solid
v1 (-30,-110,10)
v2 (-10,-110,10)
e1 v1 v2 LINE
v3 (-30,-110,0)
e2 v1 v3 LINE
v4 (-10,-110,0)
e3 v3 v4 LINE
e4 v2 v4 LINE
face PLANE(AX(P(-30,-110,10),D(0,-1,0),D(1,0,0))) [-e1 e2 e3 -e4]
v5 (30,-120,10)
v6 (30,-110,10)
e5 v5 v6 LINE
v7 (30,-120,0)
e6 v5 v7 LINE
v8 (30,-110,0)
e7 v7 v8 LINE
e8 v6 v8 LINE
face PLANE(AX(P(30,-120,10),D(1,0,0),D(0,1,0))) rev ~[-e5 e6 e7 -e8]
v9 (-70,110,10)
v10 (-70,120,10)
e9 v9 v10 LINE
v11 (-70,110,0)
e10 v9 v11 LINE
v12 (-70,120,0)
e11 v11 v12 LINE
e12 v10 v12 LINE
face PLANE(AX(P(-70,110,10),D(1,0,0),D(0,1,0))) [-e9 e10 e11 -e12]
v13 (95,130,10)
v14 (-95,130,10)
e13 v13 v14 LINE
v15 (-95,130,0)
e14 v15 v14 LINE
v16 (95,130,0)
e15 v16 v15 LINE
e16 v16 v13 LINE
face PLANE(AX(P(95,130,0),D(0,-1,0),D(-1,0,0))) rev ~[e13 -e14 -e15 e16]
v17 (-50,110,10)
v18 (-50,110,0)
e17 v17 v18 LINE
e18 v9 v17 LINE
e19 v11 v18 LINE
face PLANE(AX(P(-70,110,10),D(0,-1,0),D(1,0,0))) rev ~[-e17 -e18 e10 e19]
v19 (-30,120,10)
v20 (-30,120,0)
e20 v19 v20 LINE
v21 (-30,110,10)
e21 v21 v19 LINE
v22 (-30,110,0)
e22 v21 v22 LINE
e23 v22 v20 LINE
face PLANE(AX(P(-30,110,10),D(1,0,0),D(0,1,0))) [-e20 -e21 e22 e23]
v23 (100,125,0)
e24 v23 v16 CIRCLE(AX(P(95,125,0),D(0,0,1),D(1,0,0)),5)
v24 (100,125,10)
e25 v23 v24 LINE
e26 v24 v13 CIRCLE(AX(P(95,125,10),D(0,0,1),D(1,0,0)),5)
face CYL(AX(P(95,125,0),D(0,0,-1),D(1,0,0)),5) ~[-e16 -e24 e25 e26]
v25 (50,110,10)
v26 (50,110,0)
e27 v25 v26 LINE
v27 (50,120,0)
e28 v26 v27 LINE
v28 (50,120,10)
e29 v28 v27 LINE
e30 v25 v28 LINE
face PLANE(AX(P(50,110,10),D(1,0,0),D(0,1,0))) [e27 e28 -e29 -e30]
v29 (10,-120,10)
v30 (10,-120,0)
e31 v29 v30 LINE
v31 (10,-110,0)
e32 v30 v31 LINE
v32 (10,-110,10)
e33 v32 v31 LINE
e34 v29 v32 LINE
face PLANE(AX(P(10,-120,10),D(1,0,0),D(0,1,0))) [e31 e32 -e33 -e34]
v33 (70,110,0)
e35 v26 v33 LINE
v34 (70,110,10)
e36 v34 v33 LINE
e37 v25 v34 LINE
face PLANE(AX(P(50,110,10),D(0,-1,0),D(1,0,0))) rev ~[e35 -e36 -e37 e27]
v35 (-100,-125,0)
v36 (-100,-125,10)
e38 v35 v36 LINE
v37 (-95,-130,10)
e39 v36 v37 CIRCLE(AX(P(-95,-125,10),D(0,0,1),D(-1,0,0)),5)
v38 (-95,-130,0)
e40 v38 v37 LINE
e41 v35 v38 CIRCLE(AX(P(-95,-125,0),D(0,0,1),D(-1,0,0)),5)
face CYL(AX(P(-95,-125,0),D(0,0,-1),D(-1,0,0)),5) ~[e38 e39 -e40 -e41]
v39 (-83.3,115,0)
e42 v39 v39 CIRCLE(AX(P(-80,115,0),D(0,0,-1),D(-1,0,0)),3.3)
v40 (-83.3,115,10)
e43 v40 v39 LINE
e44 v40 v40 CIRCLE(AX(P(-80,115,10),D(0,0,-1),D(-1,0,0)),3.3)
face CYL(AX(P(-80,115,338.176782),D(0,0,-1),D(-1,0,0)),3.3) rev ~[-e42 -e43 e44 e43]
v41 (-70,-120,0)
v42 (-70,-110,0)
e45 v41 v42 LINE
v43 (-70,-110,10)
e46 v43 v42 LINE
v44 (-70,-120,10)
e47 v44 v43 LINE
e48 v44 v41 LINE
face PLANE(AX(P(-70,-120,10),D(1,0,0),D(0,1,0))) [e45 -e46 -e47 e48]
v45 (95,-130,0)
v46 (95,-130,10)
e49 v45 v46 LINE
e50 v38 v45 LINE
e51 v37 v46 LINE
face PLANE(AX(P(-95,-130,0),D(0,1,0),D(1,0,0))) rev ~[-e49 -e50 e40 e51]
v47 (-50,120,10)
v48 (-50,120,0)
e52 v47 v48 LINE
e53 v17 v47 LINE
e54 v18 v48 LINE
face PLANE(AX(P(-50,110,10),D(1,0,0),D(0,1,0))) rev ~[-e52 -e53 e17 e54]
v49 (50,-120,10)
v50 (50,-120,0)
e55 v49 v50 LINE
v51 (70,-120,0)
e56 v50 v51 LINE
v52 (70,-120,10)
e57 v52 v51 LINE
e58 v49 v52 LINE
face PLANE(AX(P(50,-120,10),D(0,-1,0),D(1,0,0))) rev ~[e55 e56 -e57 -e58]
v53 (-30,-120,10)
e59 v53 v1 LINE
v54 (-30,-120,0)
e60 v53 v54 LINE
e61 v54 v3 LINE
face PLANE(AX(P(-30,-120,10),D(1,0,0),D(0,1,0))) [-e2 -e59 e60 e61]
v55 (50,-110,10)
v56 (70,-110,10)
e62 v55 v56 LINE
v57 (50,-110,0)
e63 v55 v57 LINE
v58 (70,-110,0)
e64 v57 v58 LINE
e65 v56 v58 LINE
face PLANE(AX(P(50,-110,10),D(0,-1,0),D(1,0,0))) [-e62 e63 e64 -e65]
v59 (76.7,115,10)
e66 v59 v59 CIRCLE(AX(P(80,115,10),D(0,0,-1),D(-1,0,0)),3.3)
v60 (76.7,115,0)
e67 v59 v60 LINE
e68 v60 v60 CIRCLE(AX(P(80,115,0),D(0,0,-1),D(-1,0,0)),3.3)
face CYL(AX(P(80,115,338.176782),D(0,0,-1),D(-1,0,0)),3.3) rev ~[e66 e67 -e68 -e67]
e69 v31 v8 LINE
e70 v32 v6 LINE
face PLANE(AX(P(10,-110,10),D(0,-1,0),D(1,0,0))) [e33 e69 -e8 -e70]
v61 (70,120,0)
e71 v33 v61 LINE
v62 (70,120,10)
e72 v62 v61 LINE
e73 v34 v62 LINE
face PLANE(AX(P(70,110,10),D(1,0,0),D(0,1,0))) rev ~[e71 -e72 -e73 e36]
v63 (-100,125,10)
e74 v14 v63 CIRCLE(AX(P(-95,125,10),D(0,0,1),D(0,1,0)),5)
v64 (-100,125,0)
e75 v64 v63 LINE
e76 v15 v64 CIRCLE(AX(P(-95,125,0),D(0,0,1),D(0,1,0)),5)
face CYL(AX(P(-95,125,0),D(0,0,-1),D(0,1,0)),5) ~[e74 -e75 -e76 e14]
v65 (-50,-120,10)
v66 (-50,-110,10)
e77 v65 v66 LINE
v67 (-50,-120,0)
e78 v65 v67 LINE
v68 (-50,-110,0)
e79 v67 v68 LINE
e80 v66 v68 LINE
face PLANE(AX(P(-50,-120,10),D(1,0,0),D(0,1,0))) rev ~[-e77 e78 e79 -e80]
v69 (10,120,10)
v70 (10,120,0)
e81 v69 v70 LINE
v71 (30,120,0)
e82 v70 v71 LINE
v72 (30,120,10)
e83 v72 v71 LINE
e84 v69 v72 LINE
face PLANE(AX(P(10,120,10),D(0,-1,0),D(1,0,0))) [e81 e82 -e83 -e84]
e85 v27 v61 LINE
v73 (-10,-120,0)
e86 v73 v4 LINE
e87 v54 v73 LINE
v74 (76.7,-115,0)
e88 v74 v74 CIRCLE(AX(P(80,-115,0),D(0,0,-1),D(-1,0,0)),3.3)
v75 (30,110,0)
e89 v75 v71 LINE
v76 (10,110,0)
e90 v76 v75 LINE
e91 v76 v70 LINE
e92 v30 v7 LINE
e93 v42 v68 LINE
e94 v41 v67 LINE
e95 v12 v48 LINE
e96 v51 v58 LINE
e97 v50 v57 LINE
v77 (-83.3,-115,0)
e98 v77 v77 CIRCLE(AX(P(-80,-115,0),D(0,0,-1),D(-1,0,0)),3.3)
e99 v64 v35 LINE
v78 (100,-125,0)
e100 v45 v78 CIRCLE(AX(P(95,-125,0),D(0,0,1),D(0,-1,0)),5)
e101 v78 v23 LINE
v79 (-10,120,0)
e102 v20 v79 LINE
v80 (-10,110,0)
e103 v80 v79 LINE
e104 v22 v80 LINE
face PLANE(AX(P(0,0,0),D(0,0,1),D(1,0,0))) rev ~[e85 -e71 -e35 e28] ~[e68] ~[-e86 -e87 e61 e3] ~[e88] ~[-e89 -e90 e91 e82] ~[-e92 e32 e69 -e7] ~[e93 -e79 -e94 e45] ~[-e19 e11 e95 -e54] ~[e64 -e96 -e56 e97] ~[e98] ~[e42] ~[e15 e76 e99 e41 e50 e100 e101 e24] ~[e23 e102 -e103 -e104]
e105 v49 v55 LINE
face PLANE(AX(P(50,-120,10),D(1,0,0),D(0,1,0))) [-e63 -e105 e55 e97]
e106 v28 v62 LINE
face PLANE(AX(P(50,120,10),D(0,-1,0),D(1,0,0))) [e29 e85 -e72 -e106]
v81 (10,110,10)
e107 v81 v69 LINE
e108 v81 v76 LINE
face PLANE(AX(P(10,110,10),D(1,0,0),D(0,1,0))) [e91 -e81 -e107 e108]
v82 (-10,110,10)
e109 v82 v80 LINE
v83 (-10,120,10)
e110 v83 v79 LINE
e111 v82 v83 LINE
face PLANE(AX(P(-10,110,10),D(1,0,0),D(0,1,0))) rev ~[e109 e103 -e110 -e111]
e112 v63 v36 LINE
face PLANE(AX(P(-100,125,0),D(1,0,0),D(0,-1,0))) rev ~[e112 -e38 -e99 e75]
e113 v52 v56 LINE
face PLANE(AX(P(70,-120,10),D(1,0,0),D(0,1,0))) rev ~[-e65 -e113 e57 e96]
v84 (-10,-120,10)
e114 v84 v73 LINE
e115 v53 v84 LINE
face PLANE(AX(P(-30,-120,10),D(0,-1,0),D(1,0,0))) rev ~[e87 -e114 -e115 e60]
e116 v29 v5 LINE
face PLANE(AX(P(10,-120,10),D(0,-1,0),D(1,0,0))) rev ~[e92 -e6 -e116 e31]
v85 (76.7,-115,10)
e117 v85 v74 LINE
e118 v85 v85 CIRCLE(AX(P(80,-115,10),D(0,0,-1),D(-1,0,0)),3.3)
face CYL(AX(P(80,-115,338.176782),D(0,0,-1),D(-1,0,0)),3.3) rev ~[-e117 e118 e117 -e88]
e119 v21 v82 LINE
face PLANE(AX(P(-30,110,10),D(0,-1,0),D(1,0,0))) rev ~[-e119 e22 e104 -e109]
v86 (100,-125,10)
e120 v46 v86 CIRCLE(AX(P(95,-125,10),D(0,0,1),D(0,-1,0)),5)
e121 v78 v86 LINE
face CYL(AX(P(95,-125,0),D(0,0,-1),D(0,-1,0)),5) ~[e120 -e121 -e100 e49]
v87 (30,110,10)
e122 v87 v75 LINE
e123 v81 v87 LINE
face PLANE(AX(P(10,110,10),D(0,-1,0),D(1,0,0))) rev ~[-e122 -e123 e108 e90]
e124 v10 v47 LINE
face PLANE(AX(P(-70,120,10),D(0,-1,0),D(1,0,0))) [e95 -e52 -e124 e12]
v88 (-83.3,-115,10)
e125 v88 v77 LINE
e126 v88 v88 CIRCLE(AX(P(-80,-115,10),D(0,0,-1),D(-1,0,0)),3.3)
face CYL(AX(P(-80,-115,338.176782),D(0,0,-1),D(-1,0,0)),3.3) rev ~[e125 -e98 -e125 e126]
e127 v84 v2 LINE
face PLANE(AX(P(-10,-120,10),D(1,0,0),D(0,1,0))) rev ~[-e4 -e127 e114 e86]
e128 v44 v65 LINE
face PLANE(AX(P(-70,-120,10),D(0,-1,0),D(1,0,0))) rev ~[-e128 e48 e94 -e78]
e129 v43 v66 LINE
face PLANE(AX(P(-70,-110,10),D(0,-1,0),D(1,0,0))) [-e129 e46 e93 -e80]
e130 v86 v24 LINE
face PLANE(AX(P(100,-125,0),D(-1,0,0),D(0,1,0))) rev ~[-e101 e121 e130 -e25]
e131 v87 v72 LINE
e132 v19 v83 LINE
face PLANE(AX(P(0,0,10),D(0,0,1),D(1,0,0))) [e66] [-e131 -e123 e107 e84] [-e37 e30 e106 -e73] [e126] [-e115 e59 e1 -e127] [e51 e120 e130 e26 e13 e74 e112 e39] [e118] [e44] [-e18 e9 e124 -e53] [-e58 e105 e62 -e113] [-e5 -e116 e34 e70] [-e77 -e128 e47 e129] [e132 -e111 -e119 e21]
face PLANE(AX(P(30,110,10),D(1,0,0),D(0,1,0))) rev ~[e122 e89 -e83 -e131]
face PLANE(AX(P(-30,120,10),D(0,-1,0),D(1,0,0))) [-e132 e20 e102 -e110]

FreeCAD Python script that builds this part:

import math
import FreeCAD as App
import Part
import Sketcher
from FreeCAD import Vector

doc = App.newDocument("Part")
body = doc.addObject("PartDesign::Body", "Body")

# Sketch on XY plane
sketch1 = body.newObject("Sketcher::SketchObject", "Sketch")
sketch1.AttachmentSupport = (doc.getObject("XY_Plane"), [""])
sketch1.MapMode = "FlatFace"
sketch1.addGeometry(Part.ArcOfCircle(Part.Circle(Vector(95, 125, 0), Vector(0, 0, 1), 5), math.radians(0), math.radians(90)), False)
sketch1.addGeometry(Part.LineSegment(Vector(95, 130, 0), Vector(-95, 130, 0)), False)
sketch1.addGeometry(Part.ArcOfCircle(Part.Circle(Vector(-95, 125, 0), Vector(0, 0, 1), 5), math.radians(90), math.radians(180)), False)
sketch1.addGeometry(Part.LineSegment(Vector(-100, 125, 0), Vector(-100, -125, 0)), False)
sketch1.addGeometry(Part.ArcOfCircle(Part.Circle(Vector(-95, -125, 0), Vector(0, 0, 1), 5), math.radians(180), math.radians(270)), False)
sketch1.addGeometry(Part.LineSegment(Vector(-95, -130, 0), Vector(95, -130, 0)), False)
sketch1.addGeometry(Part.ArcOfCircle(Part.Circle(Vector(95, -125, 0), Vector(0, 0, 1), 5), math.radians(-90), math.radians(0)), False)
sketch1.addGeometry(Part.LineSegment(Vector(100, -125, 0), Vector(100, 125, 0)), False)
sketch1.addConstraint(Sketcher.Constraint("Tangent", 0, 2, 1, 1))
sketch1.addConstraint(Sketcher.Constraint("Tangent", 1, 2, 2, 1))
sketch1.addConstraint(Sketcher.Constraint("Tangent", 2, 2, 3, 1))
sketch1.addConstraint(Sketcher.Constraint("Tangent", 3, 2, 4, 1))
sketch1.addConstraint(Sketcher.Constraint("Tangent", 4, 2, 5, 1))
sketch1.addConstraint(Sketcher.Constraint("Tangent", 5, 2, 6, 1))
sketch1.addConstraint(Sketcher.Constraint("Tangent", 6, 2, 7, 1))
sketch1.addConstraint(Sketcher.Constraint("Tangent", 7, 2, 0, 1))
sketch1.addConstraint(Sketcher.Constraint("Horizontal", 1))
sketch1.addConstraint(Sketcher.Constraint("Vertical", 3))
sketch1.addConstraint(Sketcher.Constraint("Horizontal", 5))
sketch1.addConstraint(Sketcher.Constraint("Vertical", 7))
sketch1.addConstraint(Sketcher.Constraint("Equal", 0, 2))
sketch1.addConstraint(Sketcher.Constraint("Equal", 2, 4))
sketch1.addConstraint(Sketcher.Constraint("Equal", 4, 6))
sketch1.addConstraint(Sketcher.Constraint("Symmetric", 0, 3, 4, 3, -1, 1))
sketch1.addConstraint(Sketcher.Constraint("Radius", 0, 5.0))
sketch1.addConstraint(Sketcher.Constraint("DistanceX", 1, 2, 1, 1, 190.0))
sketch1.addConstraint(Sketcher.Constraint("DistanceY", 3, 2, 3, 1, 250.0))
pad1 = body.newObject("PartDesign::Pad", "Pad")
pad1.Profile = sketch1
pad1.Length = 10

# Sketch on XY plane
sketch2 = body.newObject("Sketcher::SketchObject", "Sketch001")
sketch2.AttachmentSupport = (doc.getObject("XY_Plane"), [""])
sketch2.MapMode = "FlatFace"
sketch2.AttachmentOffset = App.Placement(Vector(0, 0, 10), App.Rotation())
sketch2.addGeometry(Part.LineSegment(Vector(-70, -110, 0), Vector(-70, -120, 0)), False)
sketch2.addGeometry(Part.LineSegment(Vector(-70, -120, 0), Vector(-50, -120, 0)), False)
sketch2.addGeometry(Part.LineSegment(Vector(-50, -120, 0), Vector(-50, -110, 0)), False)
sketch2.addGeometry(Part.LineSegment(Vector(-50, -110, 0), Vector(-70, -110, 0)), False)
sketch2.addGeometry(Part.LineSegment(Vector(-30, -110, 0), Vector(-30, -120, 0)), False)
sketch2.addGeometry(Part.LineSegment(Vector(-30, -120, 0), Vector(-10, -120, 0)), False)
sketch2.addGeometry(Part.LineSegment(Vector(-10, -120, 0), Vector(-10, -110, 0)), False)
sketch2.addGeometry(Part.LineSegment(Vector(-10, -110, 0), Vector(-30, -110, 0)), False)
sketch2.addGeometry(Part.LineSegment(Vector(10, -110, 0), Vector(10, -120, 0)), False)
sketch2.addGeometry(Part.LineSegment(Vector(10, -120, 0), Vector(30, -120, 0)), False)
sketch2.addGeometry(Part.LineSegment(Vector(30, -120, 0), Vector(30, -110, 0)), False)
sketch2.addGeometry(Part.LineSegment(Vector(30, -110, 0), Vector(10, -110, 0)), False)
sketch2.addGeometry(Part.LineSegment(Vector(50, -110, 0), Vector(50, -120, 0)), False)
sketch2.addGeometry(Part.LineSegment(Vector(50, -120, 0), Vector(70, -120, 0)), False)
sketch2.addGeometry(Part.LineSegment(Vector(70, -120, 0), Vector(70, -110, 0)), False)
sketch2.addGeometry(Part.LineSegment(Vector(70, -110, 0), Vector(50, -110, 0)), False)
sketch2.addGeometry(Part.LineSegment(Vector(50, 120, 0), Vector(50, 110, 0)), False)
sketch2.addGeometry(Part.LineSegment(Vector(50, 110, 0), Vector(70, 110, 0)), False)
sketch2.addGeometry(Part.LineSegment(Vector(70, 110, 0), Vector(70, 120, 0)), False)
sketch2.addGeometry(Part.LineSegment(Vector(70, 120, 0), Vector(50, 120, 0)), False)
sketch2.addGeometry(Part.LineSegment(Vector(-70, 120, 0), Vector(-70, 110, 0)), False)
sketch2.addGeometry(Part.LineSegment(Vector(-70, 110, 0), Vector(-50, 110, 0)), False)
sketch2.addGeometry(Part.LineSegment(Vector(-50, 110, 0), Vector(-50, 120, 0)), False)
sketch2.addGeometry(Part.LineSegment(Vector(-50, 120, 0), Vector(-70, 120, 0)), False)
sketch2.addGeometry(Part.LineSegment(Vector(10, 120, 0), Vector(10, 110, 0)), False)
sketch2.addGeometry(Part.LineSegment(Vector(10, 110, 0), Vector(30, 110, 0)), False)
sketch2.addGeometry(Part.LineSegment(Vector(30, 110, 0), Vector(30, 120, 0)), False)
sketch2.addGeometry(Part.LineSegment(Vector(30, 120, 0), Vector(10, 120, 0)), False)
sketch2.addGeometry(Part.LineSegment(Vector(-30, 120, 0), Vector(-30, 110, 0)), False)
sketch2.addGeometry(Part.LineSegment(Vector(-30, 110, 0), Vector(-10, 110, 0)), False)
sketch2.addGeometry(Part.LineSegment(Vector(-10, 110, 0), Vector(-10, 120, 0)), False)
sketch2.addGeometry(Part.LineSegment(Vector(-10, 120, 0), Vector(-30, 120, 0)), False)
sketch2.addConstraint(Sketcher.Constraint("Coincident", 0, 2, 1, 1))
sketch2.addConstraint(Sketcher.Constraint("Coincident", 1, 2, 2, 1))
sketch2.addConstraint(Sketcher.Constraint("Coincident", 2, 2, 3, 1))
sketch2.addConstraint(Sketcher.Constraint("Coincident", 3, 2, 0, 1))
sketch2.addConstraint(Sketcher.Constraint("Coincident", 4, 2, 5, 1))
sketch2.addConstraint(Sketcher.Constraint("Coincident", 5, 2, 6, 1))
sketch2.addConstraint(Sketcher.Constraint("Coincident", 6, 2, 7, 1))
sketch2.addConstraint(Sketcher.Constraint("Coincident", 7, 2, 4, 1))
sketch2.addConstraint(Sketcher.Constraint("Coincident", 8, 2, 9, 1))
sketch2.addConstraint(Sketcher.Constraint("Coincident", 9, 2, 10, 1))
sketch2.addConstraint(Sketcher.Constraint("Coincident", 10, 2, 11, 1))
sketch2.addConstraint(Sketcher.Constraint("Coincident", 11, 2, 8, 1))
sketch2.addConstraint(Sketcher.Constraint("Coincident", 12, 2, 13, 1))
sketch2.addConstraint(Sketcher.Constraint("Coincident", 13, 2, 14, 1))
sketch2.addConstraint(Sketcher.Constraint("Coincident", 14, 2, 15, 1))
sketch2.addConstraint(Sketcher.Constraint("Coincident", 15, 2, 12, 1))
sketch2.addConstraint(Sketcher.Constraint("Coincident", 16, 2, 17, 1))
sketch2.addConstraint(Sketcher.Constraint("Coincident", 17, 2, 18, 1))
sketch2.addConstraint(Sketcher.Constraint("Coincident", 18, 2, 19, 1))
sketch2.addConstraint(Sketcher.Constraint("Coincident", 19, 2, 16, 1))
sketch2.addConstraint(Sketcher.Constraint("Coincident", 20, 2, 21, 1))
sketch2.addConstraint(Sketcher.Constraint("Coincident", 21, 2, 22, 1))
sketch2.addConstraint(Sketcher.Constraint("Coincident", 22, 2, 23, 1))
sketch2.addConstraint(Sketcher.Constraint("Coincident", 23, 2, 20, 1))
sketch2.addConstraint(Sketcher.Constraint("Coincident", 24, 2, 25, 1))
sketch2.addConstraint(Sketcher.Constraint("Coincident", 25, 2, 26, 1))
sketch2.addConstraint(Sketcher.Constraint("Coincident", 26, 2, 27, 1))
sketch2.addConstraint(Sketcher.Constraint("Coincident", 27, 2, 24, 1))
sketch2.addConstraint(Sketcher.Constraint("Coincident", 28, 2, 29, 1))
sketch2.addConstraint(Sketcher.Constraint("Coincident", 29, 2, 30, 1))
sketch2.addConstraint(Sketcher.Constraint("Coincident", 30, 2, 31, 1))
sketch2.addConstraint(Sketcher.Constraint("Coincident", 31, 2, 28, 1))
sketch2.addConstraint(Sketcher.Constraint("Vertical", 0))
sketch2.addConstraint(Sketcher.Constraint("Horizontal", 1))
sketch2.addConstraint(Sketcher.Constraint("Vertical", 2))
sketch2.addConstraint(Sketcher.Constraint("Horizontal", 3))
sketch2.addConstraint(Sketcher.Constraint("Vertical", 4))
sketch2.addConstraint(Sketcher.Constraint("Horizontal", 5))
sketch2.addConstraint(Sketcher.Constraint("Vertical", 6))
sketch2.addConstraint(Sketcher.Constraint("Horizontal", 7))
sketch2.addConstraint(Sketcher.Constraint("Vertical", 8))
sketch2.addConstraint(Sketcher.Constraint("Horizontal", 9))
sketch2.addConstraint(Sketcher.Constraint("Vertical", 10))
sketch2.addConstraint(Sketcher.Constraint("Horizontal", 11))
sketch2.addConstraint(Sketcher.Constraint("Vertical", 12))
sketch2.addConstraint(Sketcher.Constraint("Horizontal", 13))
sketch2.addConstraint(Sketcher.Constraint("Vertical", 14))
sketch2.addConstraint(Sketcher.Constraint("Horizontal", 15))
sketch2.addConstraint(Sketcher.Constraint("Vertical", 16))
sketch2.addConstraint(Sketcher.Constraint("Horizontal", 17))
sketch2.addConstraint(Sketcher.Constraint("Vertical", 18))
sketch2.addConstraint(Sketcher.Constraint("Horizontal", 19))
sketch2.addConstraint(Sketcher.Constraint("Vertical", 20))
sketch2.addConstraint(Sketcher.Constraint("Horizontal", 21))
sketch2.addConstraint(Sketcher.Constraint("Vertical", 22))
sketch2.addConstraint(Sketcher.Constraint("Horizontal", 23))
sketch2.addConstraint(Sketcher.Constraint("Vertical", 24))
sketch2.addConstraint(Sketcher.Constraint("Horizontal", 25))
sketch2.addConstraint(Sketcher.Constraint("Vertical", 26))
sketch2.addConstraint(Sketcher.Constraint("Horizontal", 27))
sketch2.addConstraint(Sketcher.Constraint("Vertical", 28))
sketch2.addConstraint(Sketcher.Constraint("Horizontal", 29))
sketch2.addConstraint(Sketcher.Constraint("Vertical", 30))
sketch2.addConstraint(Sketcher.Constraint("Horizontal", 31))
sketch2.addConstraint(Sketcher.Constraint("Symmetric", 2, 2, 16, 2, -1, 1))
sketch2.addConstraint(Sketcher.Constraint("Symmetric", 0, 2, 18, 2, -1, 1))
sketch2.addConstraint(Sketcher.Constraint("Symmetric", 14, 2, 20, 2, -1, 1))
sketch2.addConstraint(Sketcher.Constraint("Symmetric", 12, 2, 22, 2, -1, 1))
sketch2.addConstraint(Sketcher.Constraint("Symmetric", 6, 2, 24, 2, -1, 1))
sketch2.addConstraint(Sketcher.Constraint("Symmetric", 4, 2, 26, 2, -1, 1))
sketch2.addConstraint(Sketcher.Constraint("Symmetric", 10, 2, 28, 2, -1, 1))
sketch2.addConstraint(Sketcher.Constraint("Symmetric", 8, 2, 30, 2, -1, 1))
sketch2.addConstraint(Sketcher.Constraint("Symmetric", 5, 2, 8, 2, -2))
sketch2.addConstraint(Sketcher.Constraint("Symmetric", 7, 2, 10, 2, -2))
sketch2.addConstraint(Sketcher.Constraint("Symmetric", 1, 2, 12, 2, -2))
sketch2.addConstraint(Sketcher.Constraint("Symmetric", 3, 2, 14, 2, -2))
sketch2.addConstraint(Sketcher.Constraint("Horizontal", 1, 2, 4, 2))
sketch2.addConstraint(Sketcher.Constraint("Horizontal", 3, 2, 6, 2))
sketch2.addConstraint(Sketcher.Constraint("Equal", 3, 5))
sketch2.addConstraint(Sketcher.Constraint("DistanceX", 1, 1, 1, 2, 20.0))
sketch2.addConstraint(Sketcher.Constraint("DistanceY", 0, 2, 0, 1, 10.0))
sketch2.addConstraint(Sketcher.Constraint("DistanceX", 0, 2, -1, 1, 70.0))
sketch2.addConstraint(Sketcher.Constraint("DistanceY", 0, 2, -1, 1, 120.0))
sketch2.addConstraint(Sketcher.Constraint("DistanceX", 4, 2, -1, 1, 30.0))
pocket1 = body.newObject("PartDesign::Pocket", "Pocket")
pocket1.Profile = sketch2
pocket1.Type = "ThroughAll"

# Sketch on XY plane
sketch3 = body.newObject("Sketcher::SketchObject", "Sketch002")
sketch3.AttachmentSupport = (doc.getObject("XY_Plane"), [""])
sketch3.MapMode = "FlatFace"
sketch3.AttachmentOffset = App.Placement(Vector(0, 0, 10), App.Rotation())
sketch3.addGeometry(Part.Circle(Vector(-80, 115, 0), Vector(0, 0, 1), 3.3), False)
sketch3.addGeometry(Part.Circle(Vector(80, 115, 0), Vector(0, 0, 1), 3.3), False)
sketch3.addGeometry(Part.Circle(Vector(80, -115, 0), Vector(0, 0, 1), 3.3), False)
sketch3.addGeometry(Part.Circle(Vector(-80, -115, 0), Vector(0, 0, 1), 3.3), False)
sketch3.addConstraint(Sketcher.Constraint("Equal", 0, 1))
sketch3.addConstraint(Sketcher.Constraint("Equal", 1, 2))
sketch3.addConstraint(Sketcher.Constraint("Equal", 2, 3))
sketch3.addConstraint(Sketcher.Constraint("Symmetric", 0, 3, 2, 3, -1, 1))
sketch3.addConstraint(Sketcher.Constraint("Symmetric", 1, 3, 3, 3, -1, 1))
sketch3.addConstraint(Sketcher.Constraint("Symmetric", 0, 3, 1, 3, -2))
sketch3.addConstraint(Sketcher.Constraint("Diameter", 0, 6.6))
sketch3.addConstraint(Sketcher.Constraint("DistanceX", 0, 3, -1, 1, 80.0))
sketch3.addConstraint(Sketcher.Constraint("DistanceY", -1, 1, 0, 3, 115.0))
doc.recompute()
hole = body.newObject("PartDesign::Hole", "Hole")
hole.Profile = sketch3
hole.ThreadType = "None"
hole.Diameter = 6.6
hole.DepthType = "ThroughAll"

doc.recompute()
